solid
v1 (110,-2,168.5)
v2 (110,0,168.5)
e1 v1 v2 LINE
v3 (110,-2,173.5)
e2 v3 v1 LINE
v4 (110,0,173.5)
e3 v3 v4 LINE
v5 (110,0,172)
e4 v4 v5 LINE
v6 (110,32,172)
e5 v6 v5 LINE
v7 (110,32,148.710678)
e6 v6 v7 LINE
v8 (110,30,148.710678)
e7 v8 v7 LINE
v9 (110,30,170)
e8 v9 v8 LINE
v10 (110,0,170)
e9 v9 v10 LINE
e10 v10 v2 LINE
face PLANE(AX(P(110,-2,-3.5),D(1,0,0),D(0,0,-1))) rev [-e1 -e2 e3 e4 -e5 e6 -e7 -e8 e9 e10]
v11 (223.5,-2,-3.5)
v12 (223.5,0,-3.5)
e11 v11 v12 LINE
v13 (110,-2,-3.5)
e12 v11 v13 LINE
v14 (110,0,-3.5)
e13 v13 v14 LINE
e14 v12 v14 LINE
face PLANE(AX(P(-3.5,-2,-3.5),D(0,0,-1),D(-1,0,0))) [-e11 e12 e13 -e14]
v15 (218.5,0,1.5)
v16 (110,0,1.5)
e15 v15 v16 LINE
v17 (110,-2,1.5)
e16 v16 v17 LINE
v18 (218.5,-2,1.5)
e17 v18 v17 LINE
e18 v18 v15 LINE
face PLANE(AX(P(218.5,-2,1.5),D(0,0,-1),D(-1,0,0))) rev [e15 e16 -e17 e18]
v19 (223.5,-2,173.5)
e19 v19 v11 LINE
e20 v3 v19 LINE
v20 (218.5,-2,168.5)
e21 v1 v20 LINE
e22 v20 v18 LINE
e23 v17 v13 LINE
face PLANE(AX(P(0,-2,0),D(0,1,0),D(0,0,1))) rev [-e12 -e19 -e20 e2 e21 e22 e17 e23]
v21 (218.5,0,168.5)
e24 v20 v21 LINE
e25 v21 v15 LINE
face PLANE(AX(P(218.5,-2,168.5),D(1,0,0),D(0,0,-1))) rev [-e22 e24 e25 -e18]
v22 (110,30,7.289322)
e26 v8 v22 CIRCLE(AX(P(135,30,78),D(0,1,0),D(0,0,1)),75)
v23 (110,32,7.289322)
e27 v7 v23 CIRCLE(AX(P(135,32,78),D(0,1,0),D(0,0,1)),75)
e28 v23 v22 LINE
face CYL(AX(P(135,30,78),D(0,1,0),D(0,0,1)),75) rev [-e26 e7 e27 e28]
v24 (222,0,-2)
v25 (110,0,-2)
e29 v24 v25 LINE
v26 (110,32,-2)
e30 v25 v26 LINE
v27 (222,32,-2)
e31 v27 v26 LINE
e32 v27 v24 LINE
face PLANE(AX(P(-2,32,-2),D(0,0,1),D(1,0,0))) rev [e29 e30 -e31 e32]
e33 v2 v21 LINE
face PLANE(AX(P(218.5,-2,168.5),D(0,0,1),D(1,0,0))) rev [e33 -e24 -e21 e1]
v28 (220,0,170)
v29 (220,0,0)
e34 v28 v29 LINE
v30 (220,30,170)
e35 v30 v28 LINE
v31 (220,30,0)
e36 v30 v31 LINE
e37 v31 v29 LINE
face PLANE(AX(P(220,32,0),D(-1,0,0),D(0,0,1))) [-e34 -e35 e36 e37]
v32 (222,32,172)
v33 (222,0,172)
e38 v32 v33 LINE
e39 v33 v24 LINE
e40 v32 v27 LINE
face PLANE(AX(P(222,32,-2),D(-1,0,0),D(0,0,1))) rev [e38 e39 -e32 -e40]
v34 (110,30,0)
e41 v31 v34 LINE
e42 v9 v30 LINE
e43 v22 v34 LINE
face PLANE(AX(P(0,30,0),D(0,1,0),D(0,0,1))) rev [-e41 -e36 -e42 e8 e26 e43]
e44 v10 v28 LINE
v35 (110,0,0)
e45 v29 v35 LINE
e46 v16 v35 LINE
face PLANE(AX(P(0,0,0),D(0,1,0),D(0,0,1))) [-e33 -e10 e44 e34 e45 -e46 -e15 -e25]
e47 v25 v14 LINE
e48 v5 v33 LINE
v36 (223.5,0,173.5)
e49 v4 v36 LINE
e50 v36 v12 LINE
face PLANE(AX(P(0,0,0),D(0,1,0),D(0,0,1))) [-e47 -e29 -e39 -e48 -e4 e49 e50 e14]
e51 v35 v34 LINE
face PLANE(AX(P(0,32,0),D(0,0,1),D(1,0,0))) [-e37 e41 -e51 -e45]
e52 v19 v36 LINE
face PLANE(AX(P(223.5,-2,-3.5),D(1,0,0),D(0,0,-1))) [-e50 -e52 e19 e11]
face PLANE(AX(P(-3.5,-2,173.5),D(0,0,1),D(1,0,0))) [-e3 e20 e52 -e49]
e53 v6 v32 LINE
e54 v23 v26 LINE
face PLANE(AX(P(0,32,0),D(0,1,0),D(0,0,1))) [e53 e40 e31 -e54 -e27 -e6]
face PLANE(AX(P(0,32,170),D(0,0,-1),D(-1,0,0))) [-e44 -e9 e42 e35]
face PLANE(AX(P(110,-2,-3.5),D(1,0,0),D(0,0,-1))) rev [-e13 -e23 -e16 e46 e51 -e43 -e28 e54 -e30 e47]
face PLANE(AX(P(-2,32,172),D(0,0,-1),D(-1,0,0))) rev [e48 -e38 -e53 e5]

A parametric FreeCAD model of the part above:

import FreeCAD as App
import Part
import Sketcher
Q = App.Units.Quantity

doc = App.newDocument("Part")
body = doc.addObject("PartDesign::Body", "Body")

# Sketch on XZ plane
sketch1 = body.newObject("Sketcher::SketchObject", "Sketch")
sketch1.AttachmentSupport = (doc.getObject("XZ_Plane"), [""])
sketch1.MapMode = "FlatFace"
sketch1.addGeometry(Part.LineSegment(App.Vector(-2, -2, 0), App.Vector(-2, 172, 0)), False)
sketch1.addGeometry(Part.LineSegment(App.Vector(-2, 172, 0), App.Vector(222, 172, 0)), False)
sketch1.addGeometry(Part.LineSegment(App.Vector(222, 172, 0), App.Vector(222, -2, 0)), False)
sketch1.addGeometry(Part.LineSegment(App.Vector(222, -2, 0), App.Vector(-2, -2, 0)), False)
sketch1.addGeometry(Part.LineSegment(App.Vector(220, 170, 0), App.Vector(0, 170, 0)), False)
sketch1.addGeometry(Part.LineSegment(App.Vector(0, 170, 0), App.Vector(0, 0, 0)), False)
sketch1.addGeometry(Part.LineSegment(App.Vector(0, 0, 0), App.Vector(220, 0, 0)), False)
sketch1.addGeometry(Part.LineSegment(App.Vector(220, 0, 0), App.Vector(220, 170, 0)), False)
sketch1.addConstraint(Sketcher.Constraint("Coincident", 0, 2, 1, 1))
sketch1.addConstraint(Sketcher.Constraint("Coincident", 1, 2, 2, 1))
sketch1.addConstraint(Sketcher.Constraint("Coincident", 2, 2, 3, 1))
sketch1.addConstraint(Sketcher.Constraint("Coincident", 3, 2, 0, 1))
sketch1.addConstraint(Sketcher.Constraint("Coincident", 4, 2, 5, 1))
sketch1.addConstraint(Sketcher.Constraint("Coincident", 5, 2, 6, 1))
sketch1.addConstraint(Sketcher.Constraint("Coincident", 6, 2, 7, 1))
sketch1.addConstraint(Sketcher.Constraint("Coincident", 7, 2, 4, 1))
sketch1.addConstraint(Sketcher.Constraint("Vertical", 0))
sketch1.addConstraint(Sketcher.Constraint("Horizontal", 1))
sketch1.addConstraint(Sketcher.Constraint("Vertical", 2))
sketch1.addConstraint(Sketcher.Constraint("Horizontal", 3))
sketch1.addConstraint(Sketcher.Constraint("Horizontal", 4))
sketch1.addConstraint(Sketcher.Constraint("Vertical", 5))
sketch1.addConstraint(Sketcher.Constraint("Horizontal", 6))
sketch1.addConstraint(Sketcher.Constraint("Vertical", 7))
sketch1.addConstraint(Sketcher.Constraint("Coincident", 5, 2, -1, 1))
sketch1.addConstraint(Sketcher.Constraint("DistanceX", 1, 1, 1, 2, Q("224 mm")))
sketch1.addConstraint(Sketcher.Constraint("DistanceX", 4, 2, 4, 1, Q("220 mm")))
sketch1.addConstraint(Sketcher.Constraint("DistanceY", 0, 1, 0, 2, Q("174 mm")))
sketch1.addConstraint(Sketcher.Constraint("DistanceY", 5, 2, 5, 1, Q("170 mm")))
sketch1.addConstraint(Sketcher.Constraint("DistanceX", 0, 2, -1, 1, Q("2 mm")))
sketch1.addConstraint(Sketcher.Constraint("DistanceY", -1, 1, 0, 2, Q("172 mm")))
pad1 = body.newObject("PartDesign::Pad", "Pad")
pad1.Profile = sketch1
pad1.Length = 32
pad1.Reversed = True

# Sketch on XZ plane
sketch2 = body.newObject("Sketcher::SketchObject", "Sketch001")
sketch2.AttachmentSupport = (doc.getObject("XZ_Plane"), [""])
sketch2.MapMode = "FlatFace"
sketch2.addGeometry(Part.LineSegment(App.Vector(-4, -4, 0), App.Vector(-4, 174, 0)), False)
sketch2.addGeometry(Part.LineSegment(App.Vector(-4, 174, 0), App.Vector(224, 174, 0)), False)
sketch2.addGeometry(Part.LineSegment(App.Vector(224, 174, 0), App.Vector(224, -4, 0)), False)
sketch2.addGeometry(Part.LineSegment(App.Vector(224, -4, 0), App.Vector(-4, -4, 0)), False)
sketch2.addGeometry(Part.LineSegment(App.Vector(218, 168, 0), App.Vector(2, 168, 0)), False)
sketch2.addGeometry(Part.LineSegment(App.Vector(2, 168, 0), App.Vector(2, 2, 0)), False)
sketch2.addGeometry(Part.LineSegment(App.Vector(2, 2, 0), App.Vector(218, 2, 0)), False)
sketch2.addGeometry(Part.LineSegment(App.Vector(218, 2, 0), App.Vector(218, 168, 0)), False)
sketch2.addConstraint(Sketcher.Constraint("Coincident", 0, 2, 1, 1))
sketch2.addConstraint(Sketcher.Constraint("Coincident", 1, 2, 2, 1))
sketch2.addConstraint(Sketcher.Constraint("Coincident", 2, 2, 3, 1))
sketch2.addConstraint(Sketcher.Constraint("Coincident", 3, 2, 0, 1))
sketch2.addConstraint(Sketcher.Constraint("Coincident", 4, 2, 5, 1))
sketch2.addConstraint(Sketcher.Constraint("Coincident", 5, 2, 6, 1))
sketch2.addConstraint(Sketcher.Constraint("Coincident", 6, 2, 7, 1))
sketch2.addConstraint(Sketcher.Constraint("Coincident", 7, 2, 4, 1))
sketch2.addConstraint(Sketcher.Constraint("Vertical", 0))
sketch2.addConstraint(Sketcher.Constraint("Horizontal", 1))
sketch2.addConstraint(Sketcher.Constraint("Vertical", 2))
sketch2.addConstraint(Sketcher.Constraint("Horizontal", 3))
sketch2.addConstraint(Sketcher.Constraint("Horizontal", 4))
sketch2.addConstraint(Sketcher.Constraint("Vertical", 5))
sketch2.addConstraint(Sketcher.Constraint("Horizontal", 6))
sketch2.addConstraint(Sketcher.Constraint("Vertical", 7))
sketch2.addConstraint(Sketcher.Constraint("DistanceX", 1, 1, 1, 2, Q("227 mm")))
sketch2.addConstraint(Sketcher.Constraint("DistanceX", 4, 2, 4, 1, Q("217 mm")))
sketch2.addConstraint(Sketcher.Constraint("DistanceY", 0, 1, 0, 2, Q("177 mm")))
sketch2.addConstraint(Sketcher.Constraint("DistanceY", 5, 2, 5, 1, Q("167 mm")))
sketch2.addConstraint(Sketcher.Constraint("DistanceX", 0, 2, 4, 2, Q("5 mm")))
sketch2.addConstraint(Sketcher.Constraint("DistanceY", 4, 2, 0, 2, Q("5 mm")))
sketch2.addConstraint(Sketcher.Constraint("DistanceX", 0, 2, -1, 1, Q("3.5 mm")))
sketch2.addConstraint(Sketcher.Constraint("DistanceY", -1, 1, 0, 2, Q("173.5 mm")))
pad2 = body.newObject("PartDesign::Pad", "Pad001")
pad2.Profile = sketch2
pad2.Length = 2

# Sketch on XZ plane
sketch3 = body.newObject("Sketcher::SketchObject", "Sketch002")
sketch3.AttachmentSupport = (doc.getObject("XZ_Plane"), [""])
sketch3.MapMode = "FlatFace"
sketch3.AttachmentOffset = App.Placement(App.Vector(0, 0, -32), App.Rotation())
sketch3.addGeometry(Part.LineSegment(App.Vector(-2, -2, 0), App.Vector(-2, 170, 0)), False)
sketch3.addGeometry(Part.LineSegment(App.Vector(-2, 170, 0), App.Vector(220, 170, 0)), False)
sketch3.addGeometry(Part.LineSegment(App.Vector(220, 170, 0), App.Vector(220, -2, 0)), False)
sketch3.addGeometry(Part.LineSegment(App.Vector(220, -2, 0), App.Vector(-2, -2, 0)), False)
sketch3.addGeometry(Part.Circle(App.Vector(135, 78, 0), App.Vector(0, 0, 1), 75), False)
sketch3.addConstraint(Sketcher.Constraint("Coincident", 0, 2, 1, 1))
sketch3.addConstraint(Sketcher.Constraint("Coincident", 1, 2, 2, 1))
sketch3.addConstraint(Sketcher.Constraint("Coincident", 2, 2, 3, 1))
sketch3.addConstraint(Sketcher.Constraint("Coincident", 3, 2, 0, 1))
sketch3.addConstraint(Sketcher.Constraint("Vertical", 0))
sketch3.addConstraint(Sketcher.Constraint("Horizontal", 1))
sketch3.addConstraint(Sketcher.Constraint("Vertical", 2))
sketch3.addConstraint(Sketcher.Constraint("Horizontal", 3))
sketch3.addConstraint(Sketcher.Constraint("Diameter", 4, Q("150 mm")))
sketch3.addConstraint(Sketcher.Constraint("DistanceX", 1, 1, 1, 2, Q("222 mm")))
sketch3.addConstraint(Sketcher.Constraint("DistanceY", 0, 1, 0, 2, Q("172 mm")))
sketch3.addConstraint(Sketcher.Constraint("DistanceX", -1, 1, 4, 3, Q("135 mm")))
sketch3.addConstraint(Sketcher.Constraint("DistanceY", -1, 1, 4, 3, Q("78 mm")))
sketch3.addConstraint(Sketcher.Constraint("DistanceX", 0, 2, -1, 1, Q("2 mm")))
sketch3.addConstraint(Sketcher.Constraint("DistanceY", -1, 1, 0, 2, Q("170 mm")))
pad3 = body.newObject("PartDesign::Pad", "Pad002")
pad3.Profile = sketch3
pad3.Length = 2

# Sketch on XZ plane
sketch4 = body.newObject("Sketcher::SketchObject", "Sketch003")
sketch4.AttachmentSupport = (doc.getObject("XZ_Plane"), [""])
sketch4.MapMode = "FlatFace"
sketch4.AttachmentOffset = App.Placement(App.Vector(0, 0, -32), App.Rotation())
sketch4.addGeometry(Part.LineSegment(App.Vector(-4, -4, 0), App.Vector(-4, 174, 0)), False)
sketch4.addGeometry(Part.LineSegment(App.Vector(-4, 174, 0), App.Vector(110, 174, 0)), False)
sketch4.addGeometry(Part.LineSegment(App.Vector(110, 174, 0), App.Vector(110, -4, 0)), False)
sketch4.addGeometry(Part.LineSegment(App.Vector(110, -4, 0), App.Vector(-4, -4, 0)), False)
sketch4.addConstraint(Sketcher.Constraint("Coincident", 0, 2, 1, 1))
sketch4.addConstraint(Sketcher.Constraint("Coincident", 1, 2, 2, 1))
sketch4.addConstraint(Sketcher.Constraint("Coincident", 2, 2, 3, 1))
sketch4.addConstraint(Sketcher.Constraint("Coincident", 3, 2, 0, 1))
sketch4.addConstraint(Sketcher.Constraint("Vertical", 0))
sketch4.addConstraint(Sketcher.Constraint("Horizontal", 1))
sketch4.addConstraint(Sketcher.Constraint("Vertical", 2))
sketch4.addConstraint(Sketcher.Constraint("Horizontal", 3))
sketch4.addConstraint(Sketcher.Constraint("DistanceY", 0, 1, 0, 2, Q("177 mm")))
sketch4.addConstraint(Sketcher.Constraint("DistanceX", 1, 1, 1, 2, Q("113.5 mm")))
sketch4.addConstraint(Sketcher.Constraint("DistanceX", -1, 1, 1, 2, Q("110 mm")))
sketch4.addConstraint(Sketcher.Constraint("DistanceY", -1, 1, 0, 2, Q("173.5 mm")))
pocket1 = body.newObject("PartDesign::Pocket", "Pocket")
pocket1.Profile = sketch4
pocket1.Type = "ThroughAll"
pocket1.Reversed = True

doc.recompute()
